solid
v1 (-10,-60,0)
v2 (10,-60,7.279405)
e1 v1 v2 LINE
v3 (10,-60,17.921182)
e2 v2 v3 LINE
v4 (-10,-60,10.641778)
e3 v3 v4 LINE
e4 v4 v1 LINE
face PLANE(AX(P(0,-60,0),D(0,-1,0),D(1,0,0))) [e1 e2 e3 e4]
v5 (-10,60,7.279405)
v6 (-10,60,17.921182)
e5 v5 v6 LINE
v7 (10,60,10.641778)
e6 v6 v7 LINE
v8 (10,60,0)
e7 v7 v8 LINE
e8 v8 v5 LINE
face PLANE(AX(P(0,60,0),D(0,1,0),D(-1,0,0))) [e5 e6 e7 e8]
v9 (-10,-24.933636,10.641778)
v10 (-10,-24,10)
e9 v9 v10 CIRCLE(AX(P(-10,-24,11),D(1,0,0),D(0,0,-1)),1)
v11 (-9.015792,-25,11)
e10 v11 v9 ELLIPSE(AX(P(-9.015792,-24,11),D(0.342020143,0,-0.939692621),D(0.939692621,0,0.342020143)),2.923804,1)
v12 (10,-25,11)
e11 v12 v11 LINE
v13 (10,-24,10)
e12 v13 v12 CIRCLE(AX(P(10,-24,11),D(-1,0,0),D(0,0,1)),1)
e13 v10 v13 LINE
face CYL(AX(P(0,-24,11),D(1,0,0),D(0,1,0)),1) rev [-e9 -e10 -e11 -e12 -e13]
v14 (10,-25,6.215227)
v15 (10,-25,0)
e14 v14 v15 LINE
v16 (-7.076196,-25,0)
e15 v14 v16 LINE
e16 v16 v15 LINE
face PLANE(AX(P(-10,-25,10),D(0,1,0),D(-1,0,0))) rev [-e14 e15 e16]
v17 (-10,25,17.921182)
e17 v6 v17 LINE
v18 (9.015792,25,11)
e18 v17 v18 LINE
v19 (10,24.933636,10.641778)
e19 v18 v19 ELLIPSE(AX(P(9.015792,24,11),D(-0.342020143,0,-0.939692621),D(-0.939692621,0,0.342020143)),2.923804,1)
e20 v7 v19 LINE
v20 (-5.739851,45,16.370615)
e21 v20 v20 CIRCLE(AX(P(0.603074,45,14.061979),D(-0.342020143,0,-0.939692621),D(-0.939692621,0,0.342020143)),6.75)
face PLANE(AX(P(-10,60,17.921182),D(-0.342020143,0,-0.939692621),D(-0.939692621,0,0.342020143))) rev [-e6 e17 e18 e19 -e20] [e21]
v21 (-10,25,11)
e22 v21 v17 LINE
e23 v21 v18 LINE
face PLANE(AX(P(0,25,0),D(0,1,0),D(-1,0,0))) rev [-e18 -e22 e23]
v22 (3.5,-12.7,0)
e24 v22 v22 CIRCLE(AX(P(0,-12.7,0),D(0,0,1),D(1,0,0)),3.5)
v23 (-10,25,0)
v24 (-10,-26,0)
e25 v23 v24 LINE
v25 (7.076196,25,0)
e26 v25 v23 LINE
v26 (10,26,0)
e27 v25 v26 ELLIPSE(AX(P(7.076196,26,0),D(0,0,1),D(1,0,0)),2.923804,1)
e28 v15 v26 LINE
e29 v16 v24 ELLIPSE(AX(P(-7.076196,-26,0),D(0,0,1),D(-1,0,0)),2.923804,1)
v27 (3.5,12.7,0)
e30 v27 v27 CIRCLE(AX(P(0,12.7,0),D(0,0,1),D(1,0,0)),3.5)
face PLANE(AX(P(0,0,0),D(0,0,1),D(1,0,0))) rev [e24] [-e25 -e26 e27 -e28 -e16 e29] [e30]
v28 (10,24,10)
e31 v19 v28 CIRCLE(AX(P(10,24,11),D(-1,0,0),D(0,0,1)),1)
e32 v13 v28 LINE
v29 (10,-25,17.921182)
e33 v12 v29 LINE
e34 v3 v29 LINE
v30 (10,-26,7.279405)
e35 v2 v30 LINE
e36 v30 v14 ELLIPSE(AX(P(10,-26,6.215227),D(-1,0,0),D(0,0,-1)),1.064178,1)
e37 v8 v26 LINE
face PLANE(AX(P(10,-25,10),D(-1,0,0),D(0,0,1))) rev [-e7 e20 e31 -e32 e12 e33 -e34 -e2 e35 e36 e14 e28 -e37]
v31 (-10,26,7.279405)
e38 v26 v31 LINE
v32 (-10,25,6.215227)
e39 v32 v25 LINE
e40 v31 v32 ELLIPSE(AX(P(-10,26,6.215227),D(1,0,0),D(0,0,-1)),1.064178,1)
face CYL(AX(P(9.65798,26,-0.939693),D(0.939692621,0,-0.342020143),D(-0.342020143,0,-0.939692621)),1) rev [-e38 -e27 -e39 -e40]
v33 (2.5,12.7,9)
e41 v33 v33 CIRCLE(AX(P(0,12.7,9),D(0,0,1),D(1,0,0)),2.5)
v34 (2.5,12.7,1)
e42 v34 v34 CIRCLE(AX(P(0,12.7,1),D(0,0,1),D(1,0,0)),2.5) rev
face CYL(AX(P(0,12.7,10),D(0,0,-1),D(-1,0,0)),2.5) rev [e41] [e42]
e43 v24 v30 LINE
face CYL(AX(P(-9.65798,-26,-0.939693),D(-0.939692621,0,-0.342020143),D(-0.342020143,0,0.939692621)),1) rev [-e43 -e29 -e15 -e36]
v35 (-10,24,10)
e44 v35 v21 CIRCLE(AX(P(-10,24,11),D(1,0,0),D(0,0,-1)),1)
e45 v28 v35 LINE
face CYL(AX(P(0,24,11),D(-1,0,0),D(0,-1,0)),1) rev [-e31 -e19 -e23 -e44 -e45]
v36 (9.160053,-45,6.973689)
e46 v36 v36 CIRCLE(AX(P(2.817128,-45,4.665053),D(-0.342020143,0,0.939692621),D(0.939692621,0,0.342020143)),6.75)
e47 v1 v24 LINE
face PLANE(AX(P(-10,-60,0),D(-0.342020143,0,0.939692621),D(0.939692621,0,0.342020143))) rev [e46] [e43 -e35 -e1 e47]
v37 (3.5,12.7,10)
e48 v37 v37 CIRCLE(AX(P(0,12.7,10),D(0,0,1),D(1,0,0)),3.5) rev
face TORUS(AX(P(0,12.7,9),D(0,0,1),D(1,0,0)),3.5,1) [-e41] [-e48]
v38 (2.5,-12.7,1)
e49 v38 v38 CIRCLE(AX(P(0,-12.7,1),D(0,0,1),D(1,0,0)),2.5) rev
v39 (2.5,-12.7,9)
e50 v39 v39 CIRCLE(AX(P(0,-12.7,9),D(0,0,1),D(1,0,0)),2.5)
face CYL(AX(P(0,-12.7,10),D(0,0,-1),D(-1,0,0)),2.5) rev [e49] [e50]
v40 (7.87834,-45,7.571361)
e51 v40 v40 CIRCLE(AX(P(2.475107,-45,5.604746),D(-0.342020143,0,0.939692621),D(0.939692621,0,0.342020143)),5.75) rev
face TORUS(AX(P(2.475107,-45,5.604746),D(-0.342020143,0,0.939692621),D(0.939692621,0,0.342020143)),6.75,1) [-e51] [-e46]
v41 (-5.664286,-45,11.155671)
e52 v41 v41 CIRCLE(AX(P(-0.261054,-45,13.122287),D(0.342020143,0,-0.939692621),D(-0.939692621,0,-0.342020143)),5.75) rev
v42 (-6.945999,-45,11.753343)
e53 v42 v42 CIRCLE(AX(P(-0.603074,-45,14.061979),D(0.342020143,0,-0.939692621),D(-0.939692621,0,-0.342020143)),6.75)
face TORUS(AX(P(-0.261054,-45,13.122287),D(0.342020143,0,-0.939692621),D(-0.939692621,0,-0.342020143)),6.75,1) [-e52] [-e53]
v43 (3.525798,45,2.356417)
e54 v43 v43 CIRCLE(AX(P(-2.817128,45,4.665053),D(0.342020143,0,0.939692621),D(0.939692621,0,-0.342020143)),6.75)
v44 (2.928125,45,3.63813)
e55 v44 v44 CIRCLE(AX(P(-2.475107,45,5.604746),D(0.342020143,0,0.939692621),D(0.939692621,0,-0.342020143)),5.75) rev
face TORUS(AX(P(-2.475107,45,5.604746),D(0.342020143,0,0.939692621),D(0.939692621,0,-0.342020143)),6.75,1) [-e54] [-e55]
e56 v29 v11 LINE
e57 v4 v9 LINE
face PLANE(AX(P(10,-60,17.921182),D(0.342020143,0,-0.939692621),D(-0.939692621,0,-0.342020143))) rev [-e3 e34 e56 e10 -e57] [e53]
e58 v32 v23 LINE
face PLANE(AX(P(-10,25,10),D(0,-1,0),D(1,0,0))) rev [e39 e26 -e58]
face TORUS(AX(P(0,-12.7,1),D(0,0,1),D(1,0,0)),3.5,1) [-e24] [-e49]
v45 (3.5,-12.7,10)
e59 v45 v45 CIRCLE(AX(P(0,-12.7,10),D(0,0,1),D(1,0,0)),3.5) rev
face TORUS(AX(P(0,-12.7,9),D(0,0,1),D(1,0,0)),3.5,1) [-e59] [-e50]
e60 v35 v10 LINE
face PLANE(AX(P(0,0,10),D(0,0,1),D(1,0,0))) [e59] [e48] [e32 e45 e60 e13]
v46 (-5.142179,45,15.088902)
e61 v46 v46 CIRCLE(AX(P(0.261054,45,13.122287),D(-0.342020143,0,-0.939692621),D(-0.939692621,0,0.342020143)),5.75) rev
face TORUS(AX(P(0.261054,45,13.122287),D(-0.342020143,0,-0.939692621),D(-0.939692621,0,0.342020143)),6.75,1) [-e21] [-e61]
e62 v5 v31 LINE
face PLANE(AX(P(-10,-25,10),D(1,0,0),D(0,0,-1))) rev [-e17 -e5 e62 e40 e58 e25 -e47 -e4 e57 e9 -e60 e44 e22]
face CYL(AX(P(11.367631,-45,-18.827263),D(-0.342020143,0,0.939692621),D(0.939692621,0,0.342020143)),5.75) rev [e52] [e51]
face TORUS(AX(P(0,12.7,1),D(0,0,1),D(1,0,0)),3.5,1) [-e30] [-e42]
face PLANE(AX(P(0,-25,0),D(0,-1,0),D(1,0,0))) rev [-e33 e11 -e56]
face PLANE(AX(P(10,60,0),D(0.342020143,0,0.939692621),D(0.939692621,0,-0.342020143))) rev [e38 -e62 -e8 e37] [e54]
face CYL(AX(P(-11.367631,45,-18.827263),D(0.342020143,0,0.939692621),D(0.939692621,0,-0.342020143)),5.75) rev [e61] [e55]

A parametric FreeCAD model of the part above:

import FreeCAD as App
import Part
import Sketcher
Q = App.Units.Quantity


def edges_at(feature, points):
    """Names of the edges that pass closest to the given points."""
    edges = feature.Shape.Edges
    near = lambda p: min(range(len(edges)), key=lambda i: edges[i].distToShape(Part.Vertex(*p))[0])
    return sorted({f"Edge{near(p) + 1}" for p in points})

doc = App.newDocument("Part")
params = doc.addObject("Spreadsheet::Sheet", "Params")
for row, (alias, value) in enumerate([
    ("sketch1_diameter", "5 mm"),
    ("sketch1_width", "20 mm"),
    ("sketch1_height", "50 mm"),
    ("pad1_length", "10 mm"),
    ("pad2_length", "35 mm"),
    ("sketch3_diameter", "11.5 mm"),
    ("pocket1_length", "35 mm"),
    ("pad3_length", "35 mm"),
    ("sketch5_diameter", "11.5 mm"),
    ("pocket2_length", "35 mm"),
    ("fillet_radius", "1 mm"),
    ("fillet2_radius", "1 mm"),
    ("fillet3_radius", "1 mm"),
    ("fillet4_radius", "1 mm"),
    ("fillet5_radius", "1 mm"),
    ("fillet6_radius", "1 mm"),
    ("fillet7_radius", "1 mm"),
    ("fillet8_radius", "1 mm"),
    ("fillet9_radius", "1 mm"),
    ("fillet10_radius", "1 mm"),
    ("fillet11_radius", "1 mm"),
    ("fillet12_radius", "1 mm"),
], start=1):
    params.set(f"A{row}", alias)
    params.set(f"B{row}", "=" + value)
    params.setAlias(f"B{row}", alias)

body = doc.addObject("PartDesign::Body", "Body")

sketch1 = body.newObject("Sketcher::SketchObject", "Sketch")
sketch1.AttachmentSupport = (doc.getObject("XY_Plane"), [""])
sketch1.MapMode = "FlatFace"
sketch1.addGeometry([
    Part.LineSegment(App.Vector(-10, -25, 0), App.Vector(10, -25, 0)),
    Part.LineSegment(App.Vector(10, -25, 0), App.Vector(10, 25, 0)),
    Part.LineSegment(App.Vector(10, 25, 0), App.Vector(-10, 25, 0)),
    Part.LineSegment(App.Vector(-10, 25, 0), App.Vector(-10, -25, 0)),
    Part.Circle(App.Vector(0, -12.7, 0), App.Vector(0, 0, 1), 2.5),
    Part.Circle(App.Vector(0, 12.7, 0), App.Vector(0, 0, 1), 2.5),
], False)
sketch1.addConstraint([
    Sketcher.Constraint("Coincident", 0, 2, 1, 1),
    Sketcher.Constraint("Coincident", 1, 2, 2, 1),
    Sketcher.Constraint("Coincident", 2, 2, 3, 1),
    Sketcher.Constraint("Coincident", 3, 2, 0, 1),
    Sketcher.Constraint("Horizontal", 0),
    Sketcher.Constraint("Vertical", 1),
    Sketcher.Constraint("Horizontal", 2),
    Sketcher.Constraint("Vertical", 3),
    Sketcher.Constraint("Equal", 4, 5),
    Sketcher.Constraint("Symmetric", 4, 3, 5, 3, -1, 1),
    Sketcher.Constraint("Symmetric", 0, 2, 2, 2, -1, 1),
    Sketcher.Constraint("PointOnObject", 4, 3, -2),
    Sketcher.Constraint("Diameter", 4, Q("5 mm")),
    Sketcher.Constraint("DistanceX", 0, 1, 0, 2, Q("20 mm")),
    Sketcher.Constraint("DistanceY", 1, 1, 1, 2, Q("50 mm")),
    Sketcher.Constraint("DistanceY", 4, 3, -1, 1, Q("12.7 mm")),
])
sketch1.setExpression("Constraints[12]", "Params.sketch1_diameter")
sketch1.setExpression("Constraints[13]", "Params.sketch1_width")
sketch1.setExpression("Constraints[14]", "Params.sketch1_height")
pad1 = body.newObject("PartDesign::Pad", "Pad")
pad1.Profile = sketch1
pad1.setExpression("Length", "Params.pad1_length")

sketch2 = body.newObject("Sketcher::SketchObject", "Sketch001")
sketch2.AttachmentSupport = (doc.getObject("XZ_Plane"), [""])
sketch2.MapMode = "FlatFace"
sketch2.AttachmentOffset = App.Placement(App.Vector(0, 0, 25), App.Rotation())
sketch2.addGeometry([
    Part.LineSegment(App.Vector(10, 7.279405, 0), App.Vector(10, 17.921182, 0)),
    Part.LineSegment(App.Vector(10, 17.921182, 0), App.Vector(-10, 10.641778, 0)),
    Part.LineSegment(App.Vector(-10, 10.641778, 0), App.Vector(-10, 0, 0)),
    Part.LineSegment(App.Vector(-10, 0, 0), App.Vector(10, 7.279405, 0)),
], False)
sketch2.addConstraint([
    Sketcher.Constraint("Coincident", 0, 2, 1, 1),
    Sketcher.Constraint("Coincident", 1, 2, 2, 1),
    Sketcher.Constraint("Coincident", 2, 2, 3, 1),
    Sketcher.Constraint("Coincident", 3, 2, 0, 1),
    Sketcher.Constraint("Vertical", 0),
    Sketcher.Constraint("Vertical", 2),
    Sketcher.Constraint("PointOnObject", 2, 2, -1),
    Sketcher.Constraint("Parallel", 1, 3),
    Sketcher.Constraint("Angle", 1, Q("-160 deg")),
    Sketcher.Constraint("DistanceX", -1, 1, 0, 2, Q("10 mm")),
    Sketcher.Constraint("DistanceX", 1, 2, -1, 1, Q("10 mm")),
    Sketcher.Constraint("DistanceY", 0, 1, 0, 2, Q("10.641778 mm")),
])
pad2 = body.newObject("PartDesign::Pad", "Pad001")
pad2.Profile = sketch2
pad2.setExpression("Length", "Params.pad2_length")

sketch3 = body.newObject("Sketcher::SketchObject", "Sketch002")
sketch3.Placement = App.Placement(App.Vector(-4.589979, 0, 12.610864), App.Rotation(App.Vector(0.939692621, 0, 0.342020143), App.Vector(0, 1, 0), App.Vector(-0.342020143, 0, 0.939692621), "ZXY"))
sketch3.addGeometry(Part.Circle(App.Vector(4.242776, -45, 0), App.Vector(0, 0, 1), 5.75), False)
sketch3.addConstraint([
    Sketcher.Constraint("Diameter", 0, Q("11.5 mm")),
    Sketcher.Constraint("DistanceY", 0, 3, -1, 1, Q("45 mm")),
    Sketcher.Constraint("DistanceX", -1, 1, 0, 3, Q("4.242776 mm")),
])
sketch3.setExpression("Constraints[0]", "Params.sketch3_diameter")
pocket1 = body.newObject("PartDesign::Pocket", "Pocket")
pocket1.Profile = sketch3
pocket1.setExpression("Length", "Params.pocket1_length")

sketch4 = body.newObject("Sketcher::SketchObject", "Sketch003")
sketch4.AttachmentSupport = (doc.getObject("XZ_Plane"), [""])
sketch4.MapMode = "FlatFace"
sketch4.AttachmentOffset = App.Placement(App.Vector(0, 0, -25), App.Rotation())
sketch4.addGeometry([
    Part.LineSegment(App.Vector(10, 0, 0), App.Vector(-10, 7.279405, 0)),
    Part.LineSegment(App.Vector(-10, 7.279405, 0), App.Vector(-10, 17.921182, 0)),
    Part.LineSegment(App.Vector(-10, 17.921182, 0), App.Vector(10, 10.641778, 0)),
    Part.LineSegment(App.Vector(10, 10.641778, 0), App.Vector(10, 0, 0)),
], False)
sketch4.addConstraint([
    Sketcher.Constraint("Coincident", 0, 2, 1, 1),
    Sketcher.Constraint("Coincident", 1, 2, 2, 1),
    Sketcher.Constraint("Coincident", 2, 2, 3, 1),
    Sketcher.Constraint("Coincident", 3, 2, 0, 1),
    Sketcher.Constraint("Vertical", 1),
    Sketcher.Constraint("Vertical", 3),
    Sketcher.Constraint("PointOnObject", 3, 2, -1),
    Sketcher.Constraint("Parallel", 0, 2),
    Sketcher.Constraint("Angle", 0, Q("160 deg")),
    Sketcher.Constraint("DistanceX", 0, 2, -1, 1, Q("10 mm")),
    Sketcher.Constraint("DistanceX", -1, 1, 2, 2, Q("10 mm")),
    Sketcher.Constraint("DistanceY", 1, 1, 1, 2, Q("10.641778 mm")),
])
pad3 = body.newObject("PartDesign::Pad", "Pad002")
pad3.Profile = sketch4
pad3.setExpression("Length", "Params.pad3_length")
pad3.Reversed = True

sketch5 = body.newObject("Sketcher::SketchObject", "Sketch004")
sketch5.Placement = App.Placement(App.Vector(4.589979, 0, 12.610864), App.Rotation(App.Vector(0.939692621, 0, -0.342020143), App.Vector(0, 1, 0), App.Vector(0.342020143, 0, 0.939692621), "ZXY"))
sketch5.addGeometry(Part.Circle(App.Vector(-4.242776, 45, 0), App.Vector(0, 0, 1), 5.75), False)
sketch5.addConstraint([
    Sketcher.Constraint("Diameter", 0, Q("11.5 mm")),
    Sketcher.Constraint("DistanceY", -1, 1, 0, 3, Q("45 mm")),
    Sketcher.Constraint("DistanceX", 0, 3, -1, 1, Q("4.242776 mm")),
])
sketch5.setExpression("Constraints[0]", "Params.sketch5_diameter")
pocket2 = body.newObject("PartDesign::Pocket", "Pocket001")
pocket2.Profile = sketch5
pocket2.setExpression("Length", "Params.pocket2_length")
doc.recompute()

fillet = body.newObject("PartDesign::Fillet", "Fillet")
fillet.Base = (pocket2, edges_at(pocket2, [(-2.5, 12.7, 0)]))
fillet.setExpression("Radius", "Params.fillet_radius")
doc.recompute()

fillet2 = body.newObject("PartDesign::Fillet", "Fillet001")
fillet2.Base = (fillet, edges_at(fillet, [(0, 25, 10)]))
fillet2.setExpression("Radius", "Params.fillet2_radius")
doc.recompute()

fillet3 = body.newObject("PartDesign::Fillet", "Fillet002")
fillet3.Base = (fillet2, edges_at(fillet2, [(0, -25, 3.64)]))
fillet3.setExpression("Radius", "Params.fillet3_radius")
doc.recompute()

fillet4 = body.newObject("PartDesign::Fillet", "Fillet003")
fillet4.Base = (fillet3, edges_at(fillet3, [(0, -25, 10)]))
fillet4.setExpression("Radius", "Params.fillet4_radius")
doc.recompute()

fillet5 = body.newObject("PartDesign::Fillet", "Fillet004")
fillet5.Base = (fillet4, edges_at(fillet4, [(0, 25, 3.64)]))
fillet5.setExpression("Radius", "Params.fillet5_radius")
doc.recompute()

fillet6 = body.newObject("PartDesign::Fillet", "Fillet005")
fillet6.Base = (fillet5, edges_at(fillet5, [(-8.22, 45, 6.632)]))
fillet6.setExpression("Radius", "Params.fillet6_radius")
doc.recompute()

fillet7 = body.newObject("PartDesign::Fillet", "Fillet006")
fillet7.Base = (fillet6, edges_at(fillet6, [(-4.8, 45, 16.029)]))
fillet7.setExpression("Radius", "Params.fillet7_radius")
doc.recompute()

fillet8 = body.newObject("PartDesign::Fillet", "Fillet007")
fillet8.Base = (fillet7, edges_at(fillet7, [(-2.586, -45, 2.698)]))
fillet8.setExpression("Radius", "Params.fillet8_radius")
doc.recompute()

fillet9 = body.newObject("PartDesign::Fillet", "Fillet008")
fillet9.Base = (fillet8, edges_at(fillet8, [(-6.006, -45, 12.095)]))
fillet9.setExpression("Radius", "Params.fillet9_radius")
doc.recompute()

fillet10 = body.newObject("PartDesign::Fillet", "Fillet009")
fillet10.Base = (fillet9, edges_at(fillet9, [(-2.5, -12.7, 0)]))
fillet10.setExpression("Radius", "Params.fillet10_radius")
doc.recompute()

fillet11 = body.newObject("PartDesign::Fillet", "Fillet010")
fillet11.Base = (fillet10, edges_at(fillet10, [(-2.5, 12.7, 10)]))
fillet11.setExpression("Radius", "Params.fillet11_radius")
doc.recompute()

fillet12 = body.newObject("PartDesign::Fillet", "Fillet011")
fillet12.Base = (fillet11, edges_at(fillet11, [(-2.5, -12.7, 10)]))
fillet12.setExpression("Radius", "Params.fillet12_radius")

doc.recompute()
